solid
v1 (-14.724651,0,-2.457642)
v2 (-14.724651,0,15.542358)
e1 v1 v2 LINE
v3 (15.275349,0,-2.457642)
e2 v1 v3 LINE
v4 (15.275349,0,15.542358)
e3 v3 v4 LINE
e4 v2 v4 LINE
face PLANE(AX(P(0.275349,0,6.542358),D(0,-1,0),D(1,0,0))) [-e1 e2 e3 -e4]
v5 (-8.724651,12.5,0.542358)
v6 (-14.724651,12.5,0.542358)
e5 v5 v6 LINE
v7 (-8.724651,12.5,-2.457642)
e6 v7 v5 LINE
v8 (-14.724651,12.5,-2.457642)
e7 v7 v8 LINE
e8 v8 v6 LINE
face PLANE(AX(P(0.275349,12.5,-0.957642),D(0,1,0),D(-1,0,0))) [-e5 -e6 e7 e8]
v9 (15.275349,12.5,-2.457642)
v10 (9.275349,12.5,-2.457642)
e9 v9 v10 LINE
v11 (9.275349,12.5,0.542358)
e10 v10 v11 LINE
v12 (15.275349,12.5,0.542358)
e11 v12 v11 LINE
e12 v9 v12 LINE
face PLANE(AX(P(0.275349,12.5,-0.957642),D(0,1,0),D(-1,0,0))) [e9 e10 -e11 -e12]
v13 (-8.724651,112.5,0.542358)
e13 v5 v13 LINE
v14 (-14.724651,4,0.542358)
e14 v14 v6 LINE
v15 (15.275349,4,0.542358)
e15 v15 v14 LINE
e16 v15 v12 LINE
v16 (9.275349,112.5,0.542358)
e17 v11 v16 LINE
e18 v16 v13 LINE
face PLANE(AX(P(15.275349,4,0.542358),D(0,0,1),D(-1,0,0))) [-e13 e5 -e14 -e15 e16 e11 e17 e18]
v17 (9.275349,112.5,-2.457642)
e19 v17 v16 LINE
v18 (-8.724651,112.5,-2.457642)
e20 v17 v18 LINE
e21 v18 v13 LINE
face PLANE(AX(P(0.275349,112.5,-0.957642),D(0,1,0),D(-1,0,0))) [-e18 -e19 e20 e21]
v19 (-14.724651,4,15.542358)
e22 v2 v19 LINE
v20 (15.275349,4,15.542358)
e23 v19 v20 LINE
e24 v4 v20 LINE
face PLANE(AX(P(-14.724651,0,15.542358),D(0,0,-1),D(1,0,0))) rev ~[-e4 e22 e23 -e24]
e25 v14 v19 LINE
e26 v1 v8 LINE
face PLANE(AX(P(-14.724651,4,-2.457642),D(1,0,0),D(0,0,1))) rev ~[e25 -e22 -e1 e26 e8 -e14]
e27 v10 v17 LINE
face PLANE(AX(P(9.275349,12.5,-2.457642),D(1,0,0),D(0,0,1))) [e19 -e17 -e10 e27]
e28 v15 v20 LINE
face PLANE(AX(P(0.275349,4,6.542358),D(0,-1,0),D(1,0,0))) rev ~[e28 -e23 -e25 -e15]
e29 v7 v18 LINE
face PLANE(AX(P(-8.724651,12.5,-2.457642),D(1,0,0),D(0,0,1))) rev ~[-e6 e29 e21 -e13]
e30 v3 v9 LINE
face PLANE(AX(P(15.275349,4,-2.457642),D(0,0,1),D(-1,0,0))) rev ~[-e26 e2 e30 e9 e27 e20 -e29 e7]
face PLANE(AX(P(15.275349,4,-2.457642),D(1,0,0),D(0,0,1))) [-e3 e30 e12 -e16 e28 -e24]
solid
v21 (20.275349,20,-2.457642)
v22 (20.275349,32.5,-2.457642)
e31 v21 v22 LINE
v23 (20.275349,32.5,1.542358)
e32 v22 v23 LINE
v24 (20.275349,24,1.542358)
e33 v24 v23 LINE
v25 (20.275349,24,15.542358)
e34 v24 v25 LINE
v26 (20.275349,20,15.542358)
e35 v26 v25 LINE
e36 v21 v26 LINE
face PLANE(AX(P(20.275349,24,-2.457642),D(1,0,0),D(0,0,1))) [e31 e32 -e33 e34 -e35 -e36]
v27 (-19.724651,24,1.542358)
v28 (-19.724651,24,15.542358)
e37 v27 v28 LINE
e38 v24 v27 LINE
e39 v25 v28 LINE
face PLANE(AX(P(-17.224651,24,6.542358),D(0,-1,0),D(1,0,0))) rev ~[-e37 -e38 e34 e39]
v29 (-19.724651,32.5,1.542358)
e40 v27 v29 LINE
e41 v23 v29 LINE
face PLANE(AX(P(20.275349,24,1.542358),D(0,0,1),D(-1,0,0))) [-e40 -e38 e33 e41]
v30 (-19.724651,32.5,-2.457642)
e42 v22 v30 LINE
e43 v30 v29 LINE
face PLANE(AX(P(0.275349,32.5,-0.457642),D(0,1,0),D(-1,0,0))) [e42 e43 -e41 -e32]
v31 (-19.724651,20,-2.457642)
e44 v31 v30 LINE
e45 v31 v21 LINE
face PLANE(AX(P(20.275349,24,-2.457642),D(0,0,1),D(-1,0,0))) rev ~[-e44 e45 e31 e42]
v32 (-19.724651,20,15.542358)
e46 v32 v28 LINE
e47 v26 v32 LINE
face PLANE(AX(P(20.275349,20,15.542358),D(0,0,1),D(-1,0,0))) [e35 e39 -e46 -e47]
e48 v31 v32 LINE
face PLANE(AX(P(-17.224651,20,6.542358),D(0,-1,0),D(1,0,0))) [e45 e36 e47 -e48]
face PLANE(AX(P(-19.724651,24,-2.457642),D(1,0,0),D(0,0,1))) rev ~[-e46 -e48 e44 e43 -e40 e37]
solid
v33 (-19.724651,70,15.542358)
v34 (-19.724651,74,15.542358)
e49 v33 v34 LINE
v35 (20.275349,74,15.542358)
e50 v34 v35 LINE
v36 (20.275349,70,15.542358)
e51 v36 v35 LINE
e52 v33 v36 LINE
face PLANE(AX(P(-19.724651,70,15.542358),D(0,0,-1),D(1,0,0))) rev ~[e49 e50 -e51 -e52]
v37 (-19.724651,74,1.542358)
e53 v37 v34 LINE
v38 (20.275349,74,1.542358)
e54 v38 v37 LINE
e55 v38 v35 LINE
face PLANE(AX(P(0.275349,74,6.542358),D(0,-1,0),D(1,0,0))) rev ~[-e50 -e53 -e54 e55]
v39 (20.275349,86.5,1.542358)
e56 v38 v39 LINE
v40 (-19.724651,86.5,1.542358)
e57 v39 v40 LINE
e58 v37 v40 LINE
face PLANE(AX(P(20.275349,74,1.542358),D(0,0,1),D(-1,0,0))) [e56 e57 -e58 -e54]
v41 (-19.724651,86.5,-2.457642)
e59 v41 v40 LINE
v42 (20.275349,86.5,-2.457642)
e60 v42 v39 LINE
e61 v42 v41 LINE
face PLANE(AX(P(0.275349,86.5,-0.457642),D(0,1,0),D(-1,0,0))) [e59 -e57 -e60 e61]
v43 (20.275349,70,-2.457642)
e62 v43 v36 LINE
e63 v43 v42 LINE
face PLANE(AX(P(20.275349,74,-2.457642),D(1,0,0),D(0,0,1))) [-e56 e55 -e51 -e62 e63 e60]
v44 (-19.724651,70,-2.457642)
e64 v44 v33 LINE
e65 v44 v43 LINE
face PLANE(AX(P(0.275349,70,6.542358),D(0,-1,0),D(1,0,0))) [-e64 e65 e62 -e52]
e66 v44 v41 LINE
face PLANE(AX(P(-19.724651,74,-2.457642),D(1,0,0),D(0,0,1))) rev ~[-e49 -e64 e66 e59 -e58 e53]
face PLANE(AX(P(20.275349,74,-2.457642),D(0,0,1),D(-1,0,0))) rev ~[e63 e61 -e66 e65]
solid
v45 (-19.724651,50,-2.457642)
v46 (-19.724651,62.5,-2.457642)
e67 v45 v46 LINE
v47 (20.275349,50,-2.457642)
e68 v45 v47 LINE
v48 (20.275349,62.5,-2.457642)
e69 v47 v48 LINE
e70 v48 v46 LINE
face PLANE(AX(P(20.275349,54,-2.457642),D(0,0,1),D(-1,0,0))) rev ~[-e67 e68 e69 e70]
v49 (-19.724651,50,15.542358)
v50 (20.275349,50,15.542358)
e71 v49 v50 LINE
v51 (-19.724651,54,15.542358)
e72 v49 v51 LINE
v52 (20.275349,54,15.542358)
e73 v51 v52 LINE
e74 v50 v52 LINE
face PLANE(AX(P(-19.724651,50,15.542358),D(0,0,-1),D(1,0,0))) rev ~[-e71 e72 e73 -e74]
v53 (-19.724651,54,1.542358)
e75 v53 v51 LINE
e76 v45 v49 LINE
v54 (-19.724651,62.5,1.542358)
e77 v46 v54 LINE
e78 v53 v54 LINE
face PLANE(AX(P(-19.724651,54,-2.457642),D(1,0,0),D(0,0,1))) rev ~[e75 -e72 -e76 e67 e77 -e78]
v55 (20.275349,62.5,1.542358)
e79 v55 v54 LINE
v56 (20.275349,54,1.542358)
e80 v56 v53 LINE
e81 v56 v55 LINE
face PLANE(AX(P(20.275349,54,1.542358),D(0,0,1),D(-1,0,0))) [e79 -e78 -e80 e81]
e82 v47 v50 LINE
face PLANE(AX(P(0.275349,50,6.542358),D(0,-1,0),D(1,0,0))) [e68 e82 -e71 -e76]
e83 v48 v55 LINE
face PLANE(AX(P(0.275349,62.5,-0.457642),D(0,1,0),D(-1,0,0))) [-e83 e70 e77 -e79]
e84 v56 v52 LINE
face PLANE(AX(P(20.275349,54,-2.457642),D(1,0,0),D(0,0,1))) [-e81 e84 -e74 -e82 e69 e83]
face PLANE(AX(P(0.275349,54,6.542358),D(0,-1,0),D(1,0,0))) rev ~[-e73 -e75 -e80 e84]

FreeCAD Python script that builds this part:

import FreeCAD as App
import Part
import Sketcher

V = App.Vector
Q = App.Units.Quantity

doc = App.newDocument("Part")
body = doc.addObject("PartDesign::Body", "Body")

# Sketch on XZ plane
sketch1 = doc.addObject("Sketcher::SketchObject", "Sketch")
body.addObject(sketch1)
sketch1.AttachmentSupport = (doc.XZ_Plane, [""])
sketch1.MapMode = "FlatFace"
sketch1.addGeometry(Part.LineSegment(V(-14.724651, 15.542358, 0), V(-14.724651, -2.457642, 0)), False)
sketch1.addGeometry(Part.LineSegment(V(-14.724651, -2.457642, 0), V(15.275349, -2.457642, 0)), False)
sketch1.addGeometry(Part.LineSegment(V(15.275349, -2.457642, 0), V(15.275349, 15.542358, 0)), False)
sketch1.addGeometry(Part.LineSegment(V(15.275349, 15.542358, 0), V(-14.724651, 15.542358, 0)), False)
sketch1.addConstraint(Sketcher.Constraint("Coincident", 0, 2, 1, 1))
sketch1.addConstraint(Sketcher.Constraint("Coincident", 1, 2, 2, 1))
sketch1.addConstraint(Sketcher.Constraint("Coincident", 2, 2, 3, 1))
sketch1.addConstraint(Sketcher.Constraint("Coincident", 3, 2, 0, 1))
sketch1.addConstraint(Sketcher.Constraint("Vertical", 0))
sketch1.addConstraint(Sketcher.Constraint("Horizontal", 1))
sketch1.addConstraint(Sketcher.Constraint("Vertical", 2))
sketch1.addConstraint(Sketcher.Constraint("Horizontal", 3))
sketch1.addConstraint(Sketcher.Constraint("DistanceX", 1, 1, 1, 2, Q("30 mm")))
sketch1.addConstraint(Sketcher.Constraint("DistanceY", 0, 2, 0, 1, Q("18 mm")))
sketch1.addConstraint(Sketcher.Constraint("DistanceX", 0, 2, -1, 1, Q("14.724651 mm")))
sketch1.addConstraint(Sketcher.Constraint("DistanceY", 0, 2, -1, 1, Q("2.457642 mm")))
pad1 = doc.addObject("PartDesign::Pad", "Pad")
body.addObject(pad1)
pad1.Profile = sketch1
pad1.Length = 4
pad1.Reversed = True

# Sketch on XZ plane
sketch2 = doc.addObject("Sketcher::SketchObject", "Sketch001")
body.addObject(sketch2)
sketch2.AttachmentSupport = (doc.XZ_Plane, [""])
sketch2.MapMode = "FlatFace"
sketch2.AttachmentOffset = App.Placement(V(0, 0, -4), App.Rotation())
sketch2.addGeometry(Part.LineSegment(V(15.275349, 0.542358, 0), V(15.275349, -2.457642, 0)), False)
sketch2.addGeometry(Part.LineSegment(V(15.275349, -2.457642, 0), V(-14.724651, -2.457642, 0)), False)
sketch2.addGeometry(Part.LineSegment(V(-14.724651, -2.457642, 0), V(-14.724651, 0.542358, 0)), False)
sketch2.addGeometry(Part.LineSegment(V(-14.724651, 0.542358, 0), V(15.275349, 0.542358, 0)), False)
sketch2.addConstraint(Sketcher.Constraint("Coincident", 0, 2, 1, 1))
sketch2.addConstraint(Sketcher.Constraint("Coincident", 1, 2, 2, 1))
sketch2.addConstraint(Sketcher.Constraint("Coincident", 2, 2, 3, 1))
sketch2.addConstraint(Sketcher.Constraint("Coincident", 3, 2, 0, 1))
sketch2.addConstraint(Sketcher.Constraint("Vertical", 0))
sketch2.addConstraint(Sketcher.Constraint("Horizontal", 1))
sketch2.addConstraint(Sketcher.Constraint("Vertical", 2))
sketch2.addConstraint(Sketcher.Constraint("Horizontal", 3))
sketch2.addConstraint(Sketcher.Constraint("DistanceX", 1, 2, 1, 1, Q("30 mm")))
sketch2.addConstraint(Sketcher.Constraint("DistanceY", 0, 2, 0, 1, Q("3 mm")))
sketch2.addConstraint(Sketcher.Constraint("DistanceX", -1, 1, 0, 2, Q("15.275349 mm")))
sketch2.addConstraint(Sketcher.Constraint("DistanceY", 0, 2, -1, 1, Q("2.457642 mm")))
pad2 = doc.addObject("PartDesign::Pad", "Pad001")
body.addObject(pad2)
pad2.Profile = sketch2
pad2.Length = 8.5
pad2.Reversed = True

# Sketch on XZ plane
sketch3 = doc.addObject("Sketcher::SketchObject", "Sketch002")
body.addObject(sketch3)
sketch3.AttachmentSupport = (doc.XZ_Plane, [""])
sketch3.MapMode = "FlatFace"
sketch3.AttachmentOffset = App.Placement(V(0, 0, -12.5), App.Rotation())
sketch3.addGeometry(Part.LineSegment(V(9.275349, 0.542358, 0), V(9.275349, -2.457642, 0)), False)
sketch3.addGeometry(Part.LineSegment(V(9.275349, -2.457642, 0), V(-8.724651, -2.457642, 0)), False)
sketch3.addGeometry(Part.LineSegment(V(-8.724651, -2.457642, 0), V(-8.724651, 0.542358, 0)), False)
sketch3.addGeometry(Part.LineSegment(V(-8.724651, 0.542358, 0), V(9.275349, 0.542358, 0)), False)
sketch3.addConstraint(Sketcher.Constraint("Coincident", 0, 2, 1, 1))
sketch3.addConstraint(Sketcher.Constraint("Coincident", 1, 2, 2, 1))
sketch3.addConstraint(Sketcher.Constraint("Coincident", 2, 2, 3, 1))
sketch3.addConstraint(Sketcher.Constraint("Coincident", 3, 2, 0, 1))
sketch3.addConstraint(Sketcher.Constraint("Vertical", 0))
sketch3.addConstraint(Sketcher.Constraint("Horizontal", 1))
sketch3.addConstraint(Sketcher.Constraint("Vertical", 2))
sketch3.addConstraint(Sketcher.Constraint("Horizontal", 3))
sketch3.addConstraint(Sketcher.Constraint("DistanceX", 1, 2, 1, 1, Q("18 mm")))
sketch3.addConstraint(Sketcher.Constraint("DistanceY", 0, 2, 0, 1, Q("3 mm")))
sketch3.addConstraint(Sketcher.Constraint("DistanceX", -1, 1, 0, 2, Q("9.275349 mm")))
sketch3.addConstraint(Sketcher.Constraint("DistanceY", 0, 2, -1, 1, Q("2.457642 mm")))
pad3 = doc.addObject("PartDesign::Pad", "Pad002")
body.addObject(pad3)
pad3.Profile = sketch3
pad3.Length = 100
pad3.Reversed = True
body2 = doc.addObject("PartDesign::Body", "Body001")

# Sketch on XZ plane
sketch4 = doc.addObject("Sketcher::SketchObject", "Sketch003")
body2.addObject(sketch4)
sketch4.AttachmentSupport = (doc.getObject("XZ_Plane001"), [""])
sketch4.MapMode = "FlatFace"
sketch4.AttachmentOffset = App.Placement(V(0, 0, -20), App.Rotation())
sketch4.addGeometry(Part.LineSegment(V(-19.724651, 15.542358, 0), V(-19.724651, -2.457642, 0)), False)
sketch4.addGeometry(Part.LineSegment(V(-19.724651, -2.457642, 0), V(20.275349, -2.457642, 0)), False)
sketch4.addGeometry(Part.LineSegment(V(20.275349, -2.457642, 0), V(20.275349, 15.542358, 0)), False)
sketch4.addGeometry(Part.LineSegment(V(20.275349, 15.542358, 0), V(-19.724651, 15.542358, 0)), False)
sketch4.addConstraint(Sketcher.Constraint("Coincident", 0, 2, 1, 1))
sketch4.addConstraint(Sketcher.Constraint("Coincident", 1, 2, 2, 1))
sketch4.addConstraint(Sketcher.Constraint("Coincident", 2, 2, 3, 1))
sketch4.addConstraint(Sketcher.Constraint("Coincident", 3, 2, 0, 1))
sketch4.addConstraint(Sketcher.Constraint("Vertical", 0))
sketch4.addConstraint(Sketcher.Constraint("Horizontal", 1))
sketch4.addConstraint(Sketcher.Constraint("Vertical", 2))
sketch4.addConstraint(Sketcher.Constraint("Horizontal", 3))
sketch4.addConstraint(Sketcher.Constraint("DistanceX", 1, 1, 1, 2, Q("40 mm")))
sketch4.addConstraint(Sketcher.Constraint("DistanceY", 0, 2, 0, 1, Q("18 mm")))
sketch4.addConstraint(Sketcher.Constraint("DistanceX", 0, 2, -1, 1, Q("19.724651 mm")))
sketch4.addConstraint(Sketcher.Constraint("DistanceY", 0, 2, -1, 1, Q("2.457642 mm")))
pad4 = doc.addObject("PartDesign::Pad", "Pad003")
body2.addObject(pad4)
pad4.Profile = sketch4
pad4.Length = 4
pad4.Reversed = True

# Sketch on XZ plane
sketch5 = doc.addObject("Sketcher::SketchObject", "Sketch004")
body2.addObject(sketch5)
sketch5.AttachmentSupport = (doc.getObject("XZ_Plane001"), [""])
sketch5.MapMode = "FlatFace"
sketch5.AttachmentOffset = App.Placement(V(0, 0, -24), App.Rotation())
sketch5.addGeometry(Part.LineSegment(V(20.275349, 1.542358, 0), V(20.275349, -2.457642, 0)), False)
sketch5.addGeometry(Part.LineSegment(V(20.275349, -2.457642, 0), V(-19.724651, -2.457642, 0)), False)
sketch5.addGeometry(Part.LineSegment(V(-19.724651, -2.457642, 0), V(-19.724651, 1.542358, 0)), False)
sketch5.addGeometry(Part.LineSegment(V(-19.724651, 1.542358, 0), V(20.275349, 1.542358, 0)), False)
sketch5.addConstraint(Sketcher.Constraint("Coincident", 0, 2, 1, 1))
sketch5.addConstraint(Sketcher.Constraint("Coincident", 1, 2, 2, 1))
sketch5.addConstraint(Sketcher.Constraint("Coincident", 2, 2, 3, 1))
sketch5.addConstraint(Sketcher.Constraint("Coincident", 3, 2, 0, 1))
sketch5.addConstraint(Sketcher.Constraint("Vertical", 0))
sketch5.addConstraint(Sketcher.Constraint("Horizontal", 1))
sketch5.addConstraint(Sketcher.Constraint("Vertical", 2))
sketch5.addConstraint(Sketcher.Constraint("Horizontal", 3))
sketch5.addConstraint(Sketcher.Constraint("DistanceX", 1, 2, 1, 1, Q("40 mm")))
sketch5.addConstraint(Sketcher.Constraint("DistanceY", 0, 2, 0, 1, Q("4 mm")))
sketch5.addConstraint(Sketcher.Constraint("DistanceX", -1, 1, 0, 2, Q("20.275349 mm")))
sketch5.addConstraint(Sketcher.Constraint("DistanceY", 0, 2, -1, 1, Q("2.457642 mm")))
pad5 = doc.addObject("PartDesign::Pad", "Pad004")
body2.addObject(pad5)
pad5.Profile = sketch5
pad5.Length = 8.5
pad5.Reversed = True
body3 = doc.addObject("PartDesign::Body", "Body002")

# Sketch on XZ plane
sketch6 = doc.addObject("Sketcher::SketchObject", "Sketch005")
body3.addObject(sketch6)
sketch6.AttachmentSupport = (doc.getObject("XZ_Plane002"), [""])
sketch6.MapMode = "FlatFace"
sketch6.AttachmentOffset = App.Placement(V(0, 0, -50), App.Rotation())
sketch6.addGeometry(Part.LineSegment(V(-19.724651, 15.542358, 0), V(-19.724651, -2.457642, 0)), False)
sketch6.addGeometry(Part.LineSegment(V(-19.724651, -2.457642, 0), V(20.275349, -2.457642, 0)), False)
sketch6.addGeometry(Part.LineSegment(V(20.275349, -2.457642, 0), V(20.275349, 15.542358, 0)), False)
sketch6.addGeometry(Part.LineSegment(V(20.275349, 15.542358, 0), V(-19.724651, 15.542358, 0)), False)
sketch6.addConstraint(Sketcher.Constraint("Coincident", 0, 2, 1, 1))
sketch6.addConstraint(Sketcher.Constraint("Coincident", 1, 2, 2, 1))
sketch6.addConstraint(Sketcher.Constraint("Coincident", 2, 2, 3, 1))
sketch6.addConstraint(Sketcher.Constraint("Coincident", 3, 2, 0, 1))
sketch6.addConstraint(Sketcher.Constraint("Vertical", 0))
sketch6.addConstraint(Sketcher.Constraint("Horizontal", 1))
sketch6.addConstraint(Sketcher.Constraint("Vertical", 2))
sketch6.addConstraint(Sketcher.Constraint("Horizontal", 3))
sketch6.addConstraint(Sketcher.Constraint("DistanceX", 1, 1, 1, 2, Q("40 mm")))
sketch6.addConstraint(Sketcher.Constraint("DistanceY", 0, 2, 0, 1, Q("18 mm")))
sketch6.addConstraint(Sketcher.Constraint("DistanceX", 0, 2, -1, 1, Q("19.724651 mm")))
sketch6.addConstraint(Sketcher.Constraint("DistanceY", 0, 2, -1, 1, Q("2.457642 mm")))
pad6 = doc.addObject("PartDesign::Pad", "Pad005")
body3.addObject(pad6)
pad6.Profile = sketch6
pad6.Length = 4
pad6.Reversed = True

# Sketch on XZ plane
sketch7 = doc.addObject("Sketcher::SketchObject", "Sketch006")
body3.addObject(sketch7)
sketch7.AttachmentSupport = (doc.getObject("XZ_Plane002"), [""])
sketch7.MapMode = "FlatFace"
sketch7.AttachmentOffset = App.Placement(V(0, 0, -54), App.Rotation())
sketch7.addGeometry(Part.LineSegment(V(20.275349, 1.542358, 0), V(20.275349, -2.457642, 0)), False)
sketch7.addGeometry(Part.LineSegment(V(20.275349, -2.457642, 0), V(-19.724651, -2.457642, 0)), False)
sketch7.addGeometry(Part.LineSegment(V(-19.724651, -2.457642, 0), V(-19.724651, 1.542358, 0)), False)
sketch7.addGeometry(Part.LineSegment(V(-19.724651, 1.542358, 0), V(20.275349, 1.542358, 0)), False)
sketch7.addConstraint(Sketcher.Constraint("Coincident", 0, 2, 1, 1))
sketch7.addConstraint(Sketcher.Constraint("Coincident", 1, 2, 2, 1))
sketch7.addConstraint(Sketcher.Constraint("Coincident", 2, 2, 3, 1))
sketch7.addConstraint(Sketcher.Constraint("Coincident", 3, 2, 0, 1))
sketch7.addConstraint(Sketcher.Constraint("Vertical", 0))
sketch7.addConstraint(Sketcher.Constraint("Horizontal", 1))
sketch7.addConstraint(Sketcher.Constraint("Vertical", 2))
sketch7.addConstraint(Sketcher.Constraint("Horizontal", 3))
sketch7.addConstraint(Sketcher.Constraint("DistanceX", 1, 2, 1, 1, Q("40 mm")))
sketch7.addConstraint(Sketcher.Constraint("DistanceY", 0, 2, 0, 1, Q("4 mm")))
sketch7.addConstraint(Sketcher.Constraint("DistanceX", -1, 1, 0, 2, Q("20.275349 mm")))
sketch7.addConstraint(Sketcher.Constraint("DistanceY", 0, 2, -1, 1, Q("2.457642 mm")))
pad7 = doc.addObject("PartDesign::Pad", "Pad006")
body3.addObject(pad7)
pad7.Profile = sketch7
pad7.Length = 8.5
pad7.Reversed = True
body4 = doc.addObject("PartDesign::Body", "Body003")

# Sketch on XZ plane
sketch8 = doc.addObject("Sketcher::SketchObject", "Sketch007")
body4.addObject(sketch8)
sketch8.AttachmentSupport = (doc.getObject("XZ_Plane003"), [""])
sketch8.MapMode = "FlatFace"
sketch8.AttachmentOffset = App.Placement(V(0, 0, -70), App.Rotation())
sketch8.addGeometry(Part.LineSegment(V(-19.724651, 15.542358, 0), V(-19.724651, -2.457642, 0)), False)
sketch8.addGeometry(Part.LineSegment(V(-19.724651, -2.457642, 0), V(20.275349, -2.457642, 0)), False)
sketch8.addGeometry(Part.LineSegment(V(20.275349, -2.457642, 0), V(20.275349, 15.542358, 0)), False)
sketch8.addGeometry(Part.LineSegment(V(20.275349, 15.542358, 0), V(-19.724651, 15.542358, 0)), False)
sketch8.addConstraint(Sketcher.Constraint("Coincident", 0, 2, 1, 1))
sketch8.addConstraint(Sketcher.Constraint("Coincident", 1, 2, 2, 1))
sketch8.addConstraint(Sketcher.Constraint("Coincident", 2, 2, 3, 1))
sketch8.addConstraint(Sketcher.Constraint("Coincident", 3, 2, 0, 1))
sketch8.addConstraint(Sketcher.Constraint("Vertical", 0))
sketch8.addConstraint(Sketcher.Constraint("Horizontal", 1))
sketch8.addConstraint(Sketcher.Constraint("Vertical", 2))
sketch8.addConstraint(Sketcher.Constraint("Horizontal", 3))
sketch8.addConstraint(Sketcher.Constraint("DistanceX", 1, 1, 1, 2, Q("40 mm")))
sketch8.addConstraint(Sketcher.Constraint("DistanceY", 0, 2, 0, 1, Q("18 mm")))
sketch8.addConstraint(Sketcher.Constraint("DistanceX", 0, 2, -1, 1, Q("19.724651 mm")))
sketch8.addConstraint(Sketcher.Constraint("DistanceY", 0, 2, -1, 1, Q("2.457642 mm")))
pad8 = doc.addObject("PartDesign::Pad", "Pad007")
body4.addObject(pad8)
pad8.Profile = sketch8
pad8.Length = 4
pad8.Reversed = True

# Sketch on XZ plane
sketch9 = doc.addObject("Sketcher::SketchObject", "Sketch008")
body4.addObject(sketch9)
sketch9.AttachmentSupport = (doc.getObject("XZ_Plane003"), [""])
sketch9.MapMode = "FlatFace"
sketch9.AttachmentOffset = App.Placement(V(0, 0, -74), App.Rotation())
sketch9.addGeometry(Part.LineSegment(V(20.275349, 1.542358, 0), V(20.275349, -2.457642, 0)), False)
sketch9.addGeometry(Part.LineSegment(V(20.275349, -2.457642, 0), V(-19.724651, -2.457642, 0)), False)
sketch9.addGeometry(Part.LineSegment(V(-19.724651, -2.457642, 0), V(-19.724651, 1.542358, 0)), False)
sketch9.addGeometry(Part.LineSegment(V(-19.724651, 1.542358, 0), V(20.275349, 1.542358, 0)), False)
sketch9.addConstraint(Sketcher.Constraint("Coincident", 0, 2, 1, 1))
sketch9.addConstraint(Sketcher.Constraint("Coincident", 1, 2, 2, 1))
sketch9.addConstraint(Sketcher.Constraint("Coincident", 2, 2, 3, 1))
sketch9.addConstraint(Sketcher.Constraint("Coincident", 3, 2, 0, 1))
sketch9.addConstraint(Sketcher.Constraint("Vertical", 0))
sketch9.addConstraint(Sketcher.Constraint("Horizontal", 1))
sketch9.addConstraint(Sketcher.Constraint("Vertical", 2))
sketch9.addConstraint(Sketcher.Constraint("Horizontal", 3))
sketch9.addConstraint(Sketcher.Constraint("DistanceX", 1, 2, 1, 1, Q("40 mm")))
sketch9.addConstraint(Sketcher.Constraint("DistanceY", 0, 2, 0, 1, Q("4 mm")))
sketch9.addConstraint(Sketcher.Constraint("DistanceX", -1, 1, 0, 2, Q("20.275349 mm")))
sketch9.addConstraint(Sketcher.Constraint("DistanceY", 0, 2, -1, 1, Q("2.457642 mm")))
pad9 = doc.addObject("PartDesign::Pad", "Pad008")
body4.addObject(pad9)
pad9.Profile = sketch9
pad9.Length = 12.5
pad9.Reversed = True

doc.recompute()
